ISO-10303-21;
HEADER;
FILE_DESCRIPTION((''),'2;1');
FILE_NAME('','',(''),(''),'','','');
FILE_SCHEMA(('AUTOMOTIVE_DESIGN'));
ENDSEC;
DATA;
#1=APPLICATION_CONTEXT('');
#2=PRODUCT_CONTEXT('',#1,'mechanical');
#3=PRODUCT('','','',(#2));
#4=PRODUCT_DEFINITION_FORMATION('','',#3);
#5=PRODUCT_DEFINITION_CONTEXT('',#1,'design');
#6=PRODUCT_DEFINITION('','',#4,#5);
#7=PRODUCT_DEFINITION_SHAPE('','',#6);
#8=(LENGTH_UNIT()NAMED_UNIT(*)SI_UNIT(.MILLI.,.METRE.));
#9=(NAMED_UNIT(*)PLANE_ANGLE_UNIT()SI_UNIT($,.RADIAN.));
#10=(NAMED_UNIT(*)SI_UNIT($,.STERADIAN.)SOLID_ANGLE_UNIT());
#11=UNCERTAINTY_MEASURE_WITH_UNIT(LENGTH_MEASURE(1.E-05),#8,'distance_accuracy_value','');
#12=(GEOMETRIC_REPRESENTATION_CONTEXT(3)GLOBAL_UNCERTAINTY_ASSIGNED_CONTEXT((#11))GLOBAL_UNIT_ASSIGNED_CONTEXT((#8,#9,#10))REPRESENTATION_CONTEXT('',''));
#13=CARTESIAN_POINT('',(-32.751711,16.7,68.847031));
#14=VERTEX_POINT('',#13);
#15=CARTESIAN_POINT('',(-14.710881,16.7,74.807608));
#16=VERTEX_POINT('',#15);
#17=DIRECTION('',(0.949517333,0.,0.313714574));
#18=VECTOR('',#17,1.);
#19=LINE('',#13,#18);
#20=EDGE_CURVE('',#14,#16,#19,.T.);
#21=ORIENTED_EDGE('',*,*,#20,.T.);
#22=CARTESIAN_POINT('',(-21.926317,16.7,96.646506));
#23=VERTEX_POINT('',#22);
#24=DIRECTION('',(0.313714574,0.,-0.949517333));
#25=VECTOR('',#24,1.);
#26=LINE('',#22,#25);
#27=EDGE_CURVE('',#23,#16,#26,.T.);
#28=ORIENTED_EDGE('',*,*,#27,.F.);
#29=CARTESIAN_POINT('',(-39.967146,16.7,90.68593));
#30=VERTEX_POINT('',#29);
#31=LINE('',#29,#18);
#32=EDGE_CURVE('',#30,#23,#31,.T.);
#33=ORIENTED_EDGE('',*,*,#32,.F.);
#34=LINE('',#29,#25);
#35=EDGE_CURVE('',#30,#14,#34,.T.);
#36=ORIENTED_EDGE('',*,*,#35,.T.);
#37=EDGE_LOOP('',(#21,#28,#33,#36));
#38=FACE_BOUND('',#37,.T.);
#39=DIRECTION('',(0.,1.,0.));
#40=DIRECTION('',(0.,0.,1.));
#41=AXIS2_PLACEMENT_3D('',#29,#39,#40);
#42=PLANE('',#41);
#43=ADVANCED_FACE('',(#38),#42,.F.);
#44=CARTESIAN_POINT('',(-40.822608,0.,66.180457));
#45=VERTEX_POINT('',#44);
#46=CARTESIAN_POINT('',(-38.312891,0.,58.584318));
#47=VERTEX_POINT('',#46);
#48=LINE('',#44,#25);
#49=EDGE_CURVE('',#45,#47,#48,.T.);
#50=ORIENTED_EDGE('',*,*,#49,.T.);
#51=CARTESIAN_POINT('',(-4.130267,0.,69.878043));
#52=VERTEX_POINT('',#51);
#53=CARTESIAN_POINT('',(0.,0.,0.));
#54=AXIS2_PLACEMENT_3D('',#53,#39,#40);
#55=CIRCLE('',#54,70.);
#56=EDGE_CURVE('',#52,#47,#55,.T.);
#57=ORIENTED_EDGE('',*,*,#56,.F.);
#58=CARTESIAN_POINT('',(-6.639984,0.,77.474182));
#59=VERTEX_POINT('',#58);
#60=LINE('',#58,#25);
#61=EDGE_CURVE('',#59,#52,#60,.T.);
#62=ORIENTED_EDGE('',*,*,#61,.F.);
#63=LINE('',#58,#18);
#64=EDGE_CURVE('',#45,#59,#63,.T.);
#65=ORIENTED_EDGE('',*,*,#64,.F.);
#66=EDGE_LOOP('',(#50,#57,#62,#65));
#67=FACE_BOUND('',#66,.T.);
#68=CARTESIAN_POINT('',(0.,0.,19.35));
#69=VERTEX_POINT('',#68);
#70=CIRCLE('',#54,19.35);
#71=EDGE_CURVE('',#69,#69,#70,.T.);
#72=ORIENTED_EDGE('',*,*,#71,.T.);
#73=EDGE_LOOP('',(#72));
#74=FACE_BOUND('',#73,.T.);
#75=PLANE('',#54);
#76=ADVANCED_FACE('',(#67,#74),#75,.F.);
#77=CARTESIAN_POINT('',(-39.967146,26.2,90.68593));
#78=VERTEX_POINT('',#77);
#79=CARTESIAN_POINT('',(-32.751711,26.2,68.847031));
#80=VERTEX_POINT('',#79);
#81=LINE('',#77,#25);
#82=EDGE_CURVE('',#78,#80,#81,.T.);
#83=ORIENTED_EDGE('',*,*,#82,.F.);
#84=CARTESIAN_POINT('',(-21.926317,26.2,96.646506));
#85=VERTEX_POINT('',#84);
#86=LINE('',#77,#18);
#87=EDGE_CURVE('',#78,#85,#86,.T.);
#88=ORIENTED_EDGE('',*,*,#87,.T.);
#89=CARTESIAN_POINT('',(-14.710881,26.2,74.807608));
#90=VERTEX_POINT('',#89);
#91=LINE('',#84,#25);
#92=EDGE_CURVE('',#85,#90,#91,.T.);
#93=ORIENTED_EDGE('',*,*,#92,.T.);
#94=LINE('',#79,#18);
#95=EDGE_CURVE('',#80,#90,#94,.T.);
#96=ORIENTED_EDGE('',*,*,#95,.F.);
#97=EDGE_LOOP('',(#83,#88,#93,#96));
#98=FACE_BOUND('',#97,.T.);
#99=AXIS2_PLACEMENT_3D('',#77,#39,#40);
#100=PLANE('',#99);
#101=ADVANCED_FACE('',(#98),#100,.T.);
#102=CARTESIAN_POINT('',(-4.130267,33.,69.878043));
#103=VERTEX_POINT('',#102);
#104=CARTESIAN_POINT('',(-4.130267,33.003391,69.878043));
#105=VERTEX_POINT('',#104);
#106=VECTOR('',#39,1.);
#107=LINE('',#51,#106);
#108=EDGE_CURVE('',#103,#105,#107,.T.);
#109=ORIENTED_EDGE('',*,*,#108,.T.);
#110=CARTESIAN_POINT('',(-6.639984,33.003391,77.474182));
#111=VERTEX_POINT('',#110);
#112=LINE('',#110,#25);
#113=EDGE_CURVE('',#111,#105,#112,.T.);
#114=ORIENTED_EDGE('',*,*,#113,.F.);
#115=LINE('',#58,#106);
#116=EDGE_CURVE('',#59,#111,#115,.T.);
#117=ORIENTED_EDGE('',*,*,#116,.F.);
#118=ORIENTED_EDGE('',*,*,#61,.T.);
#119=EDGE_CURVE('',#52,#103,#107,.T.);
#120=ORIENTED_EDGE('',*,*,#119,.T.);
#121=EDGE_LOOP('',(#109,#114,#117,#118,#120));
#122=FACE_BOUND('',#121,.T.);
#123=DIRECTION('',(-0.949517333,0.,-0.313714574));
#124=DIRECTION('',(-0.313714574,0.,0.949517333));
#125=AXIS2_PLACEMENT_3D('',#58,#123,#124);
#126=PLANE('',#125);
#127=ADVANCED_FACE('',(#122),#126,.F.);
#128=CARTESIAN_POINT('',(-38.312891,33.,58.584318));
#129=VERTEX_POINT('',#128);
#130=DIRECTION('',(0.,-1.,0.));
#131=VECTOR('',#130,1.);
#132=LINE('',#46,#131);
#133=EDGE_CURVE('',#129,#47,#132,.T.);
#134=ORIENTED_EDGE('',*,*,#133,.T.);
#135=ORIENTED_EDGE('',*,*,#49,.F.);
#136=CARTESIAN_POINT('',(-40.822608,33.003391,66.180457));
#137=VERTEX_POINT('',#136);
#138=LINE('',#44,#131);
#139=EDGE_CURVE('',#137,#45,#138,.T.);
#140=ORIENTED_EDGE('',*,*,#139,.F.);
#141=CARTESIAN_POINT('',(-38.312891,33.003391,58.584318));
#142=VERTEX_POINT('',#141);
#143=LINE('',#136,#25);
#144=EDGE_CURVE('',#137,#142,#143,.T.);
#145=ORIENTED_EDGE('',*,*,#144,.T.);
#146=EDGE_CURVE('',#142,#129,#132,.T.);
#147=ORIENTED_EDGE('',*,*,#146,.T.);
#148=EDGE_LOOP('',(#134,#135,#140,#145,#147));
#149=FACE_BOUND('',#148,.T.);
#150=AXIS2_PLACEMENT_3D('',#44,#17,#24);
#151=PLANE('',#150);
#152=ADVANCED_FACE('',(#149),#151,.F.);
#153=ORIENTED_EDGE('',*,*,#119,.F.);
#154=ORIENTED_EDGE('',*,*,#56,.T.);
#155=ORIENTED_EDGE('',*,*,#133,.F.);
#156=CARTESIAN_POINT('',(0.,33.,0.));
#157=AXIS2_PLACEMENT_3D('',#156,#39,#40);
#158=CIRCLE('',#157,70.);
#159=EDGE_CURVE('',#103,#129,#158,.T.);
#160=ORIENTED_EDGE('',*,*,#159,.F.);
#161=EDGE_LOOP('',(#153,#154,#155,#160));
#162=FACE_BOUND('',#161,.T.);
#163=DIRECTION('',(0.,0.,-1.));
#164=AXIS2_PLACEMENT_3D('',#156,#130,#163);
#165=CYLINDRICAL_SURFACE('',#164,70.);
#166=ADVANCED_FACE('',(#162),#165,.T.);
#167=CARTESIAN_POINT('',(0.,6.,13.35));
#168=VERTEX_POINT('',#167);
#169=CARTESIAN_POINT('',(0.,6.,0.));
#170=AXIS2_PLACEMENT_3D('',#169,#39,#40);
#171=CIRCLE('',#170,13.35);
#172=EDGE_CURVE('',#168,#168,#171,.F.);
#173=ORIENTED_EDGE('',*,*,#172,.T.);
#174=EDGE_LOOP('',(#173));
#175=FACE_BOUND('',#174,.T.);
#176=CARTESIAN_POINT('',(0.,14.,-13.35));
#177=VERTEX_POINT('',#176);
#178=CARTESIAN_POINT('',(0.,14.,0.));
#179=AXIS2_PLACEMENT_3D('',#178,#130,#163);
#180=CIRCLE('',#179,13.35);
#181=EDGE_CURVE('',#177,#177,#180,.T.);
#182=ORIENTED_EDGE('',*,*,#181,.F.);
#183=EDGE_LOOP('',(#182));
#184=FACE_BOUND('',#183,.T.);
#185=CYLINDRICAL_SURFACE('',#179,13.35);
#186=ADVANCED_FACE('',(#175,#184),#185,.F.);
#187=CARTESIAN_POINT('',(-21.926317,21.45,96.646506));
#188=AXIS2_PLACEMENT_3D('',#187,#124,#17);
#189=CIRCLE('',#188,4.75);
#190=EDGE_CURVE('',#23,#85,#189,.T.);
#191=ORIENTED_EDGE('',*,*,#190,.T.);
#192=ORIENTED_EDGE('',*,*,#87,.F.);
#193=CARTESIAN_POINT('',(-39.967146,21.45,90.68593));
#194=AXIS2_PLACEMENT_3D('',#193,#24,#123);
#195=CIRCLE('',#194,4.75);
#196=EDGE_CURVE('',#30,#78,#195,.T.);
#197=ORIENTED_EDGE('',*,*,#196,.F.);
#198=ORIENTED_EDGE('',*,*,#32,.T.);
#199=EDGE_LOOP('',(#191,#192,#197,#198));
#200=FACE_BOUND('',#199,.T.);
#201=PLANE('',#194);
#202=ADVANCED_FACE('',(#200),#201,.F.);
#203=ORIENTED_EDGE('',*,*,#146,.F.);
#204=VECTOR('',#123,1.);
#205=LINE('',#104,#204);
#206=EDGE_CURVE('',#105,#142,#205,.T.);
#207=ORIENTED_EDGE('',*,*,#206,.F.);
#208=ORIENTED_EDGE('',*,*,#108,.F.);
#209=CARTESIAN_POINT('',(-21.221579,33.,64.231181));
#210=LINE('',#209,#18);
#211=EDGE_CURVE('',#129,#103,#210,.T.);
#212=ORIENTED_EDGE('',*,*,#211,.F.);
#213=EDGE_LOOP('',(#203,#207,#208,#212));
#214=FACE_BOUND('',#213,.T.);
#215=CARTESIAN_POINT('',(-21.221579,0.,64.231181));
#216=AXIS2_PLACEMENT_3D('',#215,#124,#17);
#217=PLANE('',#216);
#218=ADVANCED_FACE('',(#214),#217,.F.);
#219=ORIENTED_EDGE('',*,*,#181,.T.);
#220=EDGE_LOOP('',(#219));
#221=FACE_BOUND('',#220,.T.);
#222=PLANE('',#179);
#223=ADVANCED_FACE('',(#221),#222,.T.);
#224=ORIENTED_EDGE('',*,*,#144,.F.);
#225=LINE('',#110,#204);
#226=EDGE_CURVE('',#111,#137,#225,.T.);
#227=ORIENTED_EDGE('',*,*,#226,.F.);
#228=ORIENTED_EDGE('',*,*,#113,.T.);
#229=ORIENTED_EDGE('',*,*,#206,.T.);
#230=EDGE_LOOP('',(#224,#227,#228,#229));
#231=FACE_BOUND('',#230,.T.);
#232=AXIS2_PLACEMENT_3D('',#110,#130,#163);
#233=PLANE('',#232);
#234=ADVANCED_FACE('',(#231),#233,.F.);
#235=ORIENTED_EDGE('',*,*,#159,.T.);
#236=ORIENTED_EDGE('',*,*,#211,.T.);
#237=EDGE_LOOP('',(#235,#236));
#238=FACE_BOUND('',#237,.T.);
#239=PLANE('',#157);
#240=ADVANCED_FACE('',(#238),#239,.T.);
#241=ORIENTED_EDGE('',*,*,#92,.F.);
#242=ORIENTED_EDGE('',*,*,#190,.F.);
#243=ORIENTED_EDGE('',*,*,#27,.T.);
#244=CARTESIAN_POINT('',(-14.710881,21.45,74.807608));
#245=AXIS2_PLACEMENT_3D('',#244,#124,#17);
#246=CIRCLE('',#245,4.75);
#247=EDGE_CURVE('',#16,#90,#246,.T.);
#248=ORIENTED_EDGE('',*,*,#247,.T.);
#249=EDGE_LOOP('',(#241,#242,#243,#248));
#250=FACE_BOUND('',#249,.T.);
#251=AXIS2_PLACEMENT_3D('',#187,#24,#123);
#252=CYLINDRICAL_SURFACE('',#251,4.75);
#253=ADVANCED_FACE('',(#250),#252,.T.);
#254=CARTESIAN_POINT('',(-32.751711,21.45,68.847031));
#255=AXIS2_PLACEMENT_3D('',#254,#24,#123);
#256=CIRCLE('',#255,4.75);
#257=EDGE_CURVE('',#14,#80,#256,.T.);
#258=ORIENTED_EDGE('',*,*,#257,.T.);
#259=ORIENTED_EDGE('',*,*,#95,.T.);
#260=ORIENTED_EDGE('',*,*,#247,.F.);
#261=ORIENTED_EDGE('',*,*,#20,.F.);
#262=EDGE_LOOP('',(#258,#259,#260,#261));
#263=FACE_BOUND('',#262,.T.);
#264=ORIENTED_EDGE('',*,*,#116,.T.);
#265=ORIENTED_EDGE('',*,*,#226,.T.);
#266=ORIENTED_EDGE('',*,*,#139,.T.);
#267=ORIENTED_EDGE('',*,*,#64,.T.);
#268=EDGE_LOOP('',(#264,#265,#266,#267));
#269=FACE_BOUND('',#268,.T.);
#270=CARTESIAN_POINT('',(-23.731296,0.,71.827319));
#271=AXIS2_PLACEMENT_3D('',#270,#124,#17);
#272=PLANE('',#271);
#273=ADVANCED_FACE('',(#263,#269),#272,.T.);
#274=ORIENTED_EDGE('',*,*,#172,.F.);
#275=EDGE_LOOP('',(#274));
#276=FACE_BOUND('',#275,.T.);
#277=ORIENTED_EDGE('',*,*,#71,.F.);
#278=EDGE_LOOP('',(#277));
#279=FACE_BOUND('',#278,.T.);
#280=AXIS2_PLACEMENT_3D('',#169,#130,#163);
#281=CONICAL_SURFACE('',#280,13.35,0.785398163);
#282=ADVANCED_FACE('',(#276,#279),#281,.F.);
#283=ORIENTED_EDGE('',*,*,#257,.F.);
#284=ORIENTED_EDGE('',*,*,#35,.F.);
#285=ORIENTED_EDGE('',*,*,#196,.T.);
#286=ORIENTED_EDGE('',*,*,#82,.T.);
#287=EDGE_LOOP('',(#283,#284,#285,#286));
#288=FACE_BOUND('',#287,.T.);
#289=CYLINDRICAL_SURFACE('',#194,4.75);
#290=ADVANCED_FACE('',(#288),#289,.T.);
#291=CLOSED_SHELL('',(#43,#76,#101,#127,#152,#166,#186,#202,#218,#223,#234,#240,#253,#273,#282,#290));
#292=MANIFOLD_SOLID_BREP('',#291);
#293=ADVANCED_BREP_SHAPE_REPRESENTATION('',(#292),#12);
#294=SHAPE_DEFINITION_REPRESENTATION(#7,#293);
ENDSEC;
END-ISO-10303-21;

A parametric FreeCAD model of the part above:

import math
import FreeCAD as App
import Part
import Sketcher
from FreeCAD import Vector
Q = App.Units.Quantity


def edges_at(feature, points):
    """Names of the edges that pass closest to the given points."""
    edges = feature.Shape.Edges
    near = lambda p: min(range(len(edges)), key=lambda i: edges[i].distToShape(Part.Vertex(*p))[0])
    return sorted({f"Edge{near(p) + 1}" for p in points})


def add_polygon(sketch, points):
    """Adds a closed chain of lines whose ends are joined by coincident constraints."""
    first, n = sketch.GeometryCount, len(points)
    for a, b in zip(points, points[1:] + points[:1]):
        sketch.addGeometry(Part.LineSegment(App.Vector(*a, 0), App.Vector(*b, 0)), False)
    for i in range(n):
        sketch.addConstraint(Sketcher.Constraint("Coincident", first + i, 2, first + (i + 1) % n, 1))

doc = App.newDocument("Part")
body = doc.addObject("PartDesign::Body", "Body")

# Sketch on XZ plane
sketch1 = body.newObject("Sketcher::SketchObject", "Sketch")
sketch1.AttachmentSupport = (doc.getObject("XZ_Plane"), [""])
sketch1.MapMode = "FlatFace"
sketch1.addGeometry(Part.Circle(Vector(0, 0, 0), Vector(0, 0, 1), 70), False)
sketch1.addConstraint([
    Sketcher.Constraint("Coincident", 0, 3, -1, 1),
    Sketcher.Constraint("Diameter", 0, Q("140 mm")),
])
pad1 = body.newObject("PartDesign::Pad", "Pad")
pad1.Profile = sketch1
pad1.Length = 33
pad1.Reversed = True

# Sketch on an angled plane
sketch2 = body.newObject("Sketcher::SketchObject", "Sketch001")
sketch2.Placement = App.Placement(Vector(-21.221579, 0, 64.231181), App.Rotation(Vector(0.949517333, 0, 0.313714574), Vector(0, 1, 0), Vector(-0.313714574, 0, 0.949517333), "ZXY"))
add_polygon(sketch2, [(-18, 33), (-18, 0), (18, 0), (18, 33)])  # lines 0-3
sketch2.addConstraint([
    Sketcher.Constraint("Vertical", 0),
    Sketcher.Constraint("Horizontal", 1),
    Sketcher.Constraint("Vertical", 2),
    Sketcher.Constraint("Horizontal", 3),
    Sketcher.Constraint("Symmetric", 0, 2, 1, 2, -1, 1),
    Sketcher.Constraint("DistanceX", 1, 1, 1, 2, Q("36 mm")),
    Sketcher.Constraint("DistanceY", 0, 2, 0, 1, Q("33.003391 mm")),
])
pad2 = body.newObject("PartDesign::Pad", "Pad001")
pad2.Profile = sketch2
pad2.Length = 8

# Sketch on an angled plane
sketch3 = body.newObject("Sketcher::SketchObject", "Sketch002")
sketch3.Placement = App.Placement(Vector(-23.731296, 0, 71.827319), App.Rotation(Vector(0.949517333, 0, 0.313714574), Vector(0, 1, 0), Vector(-0.313714574, 0, 0.949517333), "ZXY"))
sketch3.addGeometry([
    Part.LineSegment(Vector(9.5, 26.2, 0), Vector(-9.5, 26.2, 0)),
    Part.ArcOfCircle(Part.Circle(Vector(-9.5, 21.4, 0), Vector(0, 0, 1), 4.8), math.radians(90), math.radians(270)),
    Part.LineSegment(Vector(-9.5, 16.7, 0), Vector(9.5, 16.7, 0)),
    Part.ArcOfCircle(Part.Circle(Vector(9.5, 21.4, 0), Vector(0, 0, 1), 4.8), math.radians(-90), math.radians(90)),
], False)
sketch3.addConstraint([
    Sketcher.Constraint("Tangent", 0, 2, 1, 1),
    Sketcher.Constraint("Tangent", 1, 2, 2, 1),
    Sketcher.Constraint("Tangent", 2, 2, 3, 1),
    Sketcher.Constraint("Tangent", 3, 2, 0, 1),
    Sketcher.Constraint("Horizontal", 0),
    Sketcher.Constraint("Horizontal", 2),
    Sketcher.Constraint("DistanceX", 0, 2, 0, 1, Q("19 mm")),
    Sketcher.Constraint("Radius", 1, Q("4.75 mm")),
    Sketcher.Constraint("DistanceX", 1, 3, -1, 1, Q("9.5 mm")),
    Sketcher.Constraint("DistanceY", -1, 1, 0, 2, Q("26.2 mm")),
])
pad3 = body.newObject("PartDesign::Pad", "Pad002")
pad3.Profile = sketch3
pad3.Length = 23

# Sketch on XZ plane
sketch4 = body.newObject("Sketcher::SketchObject", "Sketch003")
sketch4.AttachmentSupport = (doc.getObject("XZ_Plane"), [""])
sketch4.MapMode = "FlatFace"
sketch4.addGeometry(Part.Circle(Vector(0, 0, 0), Vector(0, 0, 1), 13), False)
sketch4.addConstraint([
    Sketcher.Constraint("Coincident", 0, 3, -1, 1),
    Sketcher.Constraint("Diameter", 0, Q("26.7 mm")),
])
pocket1 = body.newObject("PartDesign::Pocket", "Pocket")
pocket1.Profile = sketch4
pocket1.Length = 14
doc.recompute()

chamfer = body.newObject("PartDesign::Chamfer", "Chamfer")
chamfer.Base = (pocket1, edges_at(pocket1, [(-13.35, 0, 0)]))
chamfer.Size = 6

doc.recompute()
